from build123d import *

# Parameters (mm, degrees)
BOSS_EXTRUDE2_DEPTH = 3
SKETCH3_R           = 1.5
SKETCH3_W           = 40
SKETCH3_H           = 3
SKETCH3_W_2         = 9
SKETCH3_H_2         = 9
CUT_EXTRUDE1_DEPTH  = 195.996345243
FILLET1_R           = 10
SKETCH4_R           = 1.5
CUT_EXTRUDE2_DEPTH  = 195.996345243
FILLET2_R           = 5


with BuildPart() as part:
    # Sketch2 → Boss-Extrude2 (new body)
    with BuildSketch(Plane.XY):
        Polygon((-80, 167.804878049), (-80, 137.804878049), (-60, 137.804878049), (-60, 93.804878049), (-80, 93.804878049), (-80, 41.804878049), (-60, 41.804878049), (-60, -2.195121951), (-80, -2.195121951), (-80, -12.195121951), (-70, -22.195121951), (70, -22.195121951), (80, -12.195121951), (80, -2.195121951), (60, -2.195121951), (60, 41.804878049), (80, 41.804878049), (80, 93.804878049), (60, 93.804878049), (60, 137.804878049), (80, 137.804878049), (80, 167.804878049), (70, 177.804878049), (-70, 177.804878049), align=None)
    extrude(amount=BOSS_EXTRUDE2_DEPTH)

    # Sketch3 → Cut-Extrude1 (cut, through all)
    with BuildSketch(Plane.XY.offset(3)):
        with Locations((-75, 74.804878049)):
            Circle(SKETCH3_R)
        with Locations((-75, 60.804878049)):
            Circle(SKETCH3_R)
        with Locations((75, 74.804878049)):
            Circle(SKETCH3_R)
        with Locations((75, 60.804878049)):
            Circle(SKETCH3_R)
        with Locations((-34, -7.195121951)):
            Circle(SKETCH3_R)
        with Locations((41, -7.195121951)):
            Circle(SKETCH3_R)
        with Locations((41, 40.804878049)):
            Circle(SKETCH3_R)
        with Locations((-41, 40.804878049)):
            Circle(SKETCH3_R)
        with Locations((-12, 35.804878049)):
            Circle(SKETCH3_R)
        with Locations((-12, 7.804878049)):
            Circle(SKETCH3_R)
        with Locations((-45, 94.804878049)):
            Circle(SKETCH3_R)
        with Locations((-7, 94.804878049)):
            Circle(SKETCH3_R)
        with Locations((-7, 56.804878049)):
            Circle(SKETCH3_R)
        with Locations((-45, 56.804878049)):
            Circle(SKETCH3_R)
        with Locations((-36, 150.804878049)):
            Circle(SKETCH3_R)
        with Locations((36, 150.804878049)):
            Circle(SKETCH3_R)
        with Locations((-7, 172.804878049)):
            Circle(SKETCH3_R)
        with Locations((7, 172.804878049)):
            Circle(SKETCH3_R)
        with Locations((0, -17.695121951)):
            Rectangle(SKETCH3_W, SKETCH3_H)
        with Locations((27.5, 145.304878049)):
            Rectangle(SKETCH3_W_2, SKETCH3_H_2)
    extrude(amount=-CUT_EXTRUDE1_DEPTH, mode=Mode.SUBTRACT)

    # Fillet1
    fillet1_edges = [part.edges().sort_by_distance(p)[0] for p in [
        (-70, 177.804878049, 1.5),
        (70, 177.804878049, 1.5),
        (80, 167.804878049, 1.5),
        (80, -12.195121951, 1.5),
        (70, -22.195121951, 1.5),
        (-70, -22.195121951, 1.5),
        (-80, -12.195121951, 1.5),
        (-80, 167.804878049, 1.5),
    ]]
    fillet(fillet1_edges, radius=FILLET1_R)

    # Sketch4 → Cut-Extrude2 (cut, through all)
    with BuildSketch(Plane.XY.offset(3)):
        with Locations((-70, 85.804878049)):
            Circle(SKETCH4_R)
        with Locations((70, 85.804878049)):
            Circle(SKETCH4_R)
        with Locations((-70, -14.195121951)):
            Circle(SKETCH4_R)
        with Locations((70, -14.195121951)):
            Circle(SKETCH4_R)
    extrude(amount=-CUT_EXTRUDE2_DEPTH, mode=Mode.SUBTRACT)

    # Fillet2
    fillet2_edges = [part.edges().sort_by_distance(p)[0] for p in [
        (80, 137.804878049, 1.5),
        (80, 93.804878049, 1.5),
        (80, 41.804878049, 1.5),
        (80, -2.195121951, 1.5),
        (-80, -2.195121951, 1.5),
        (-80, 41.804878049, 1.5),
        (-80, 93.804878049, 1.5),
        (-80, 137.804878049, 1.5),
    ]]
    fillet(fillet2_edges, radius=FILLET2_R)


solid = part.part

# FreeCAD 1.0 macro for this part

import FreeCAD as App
import Part
import Sketcher
Q = App.Units.Quantity


def edges_at(feature, points):
    """Names of the edges that pass closest to the given points."""
    edges = feature.Shape.Edges
    near = lambda p: min(range(len(edges)), key=lambda i: edges[i].distToShape(Part.Vertex(*p))[0])
    return sorted({f"Edge{near(p) + 1}" for p in points})

doc = App.newDocument("Part")
body = doc.addObject("PartDesign::Body", "Body")

# Sketch on XY plane
sketch1 = doc.addObject("Sketcher::SketchObject", "Sketch")
body.addObject(sketch1)
sketch1.AttachmentSupport = (doc.XY_Plane, [""])
sketch1.MapMode = "FlatFace"
sketch1.addGeometry(Part.LineSegment(App.Vector(-80, 167.804878, 0), App.Vector(-80, 137.804878, 0)), False)
sketch1.addGeometry(Part.LineSegment(App.Vector(-80, 137.804878, 0), App.Vector(-60, 137.804878, 0)), False)
sketch1.addGeometry(Part.LineSegment(App.Vector(-60, 137.804878, 0), App.Vector(-60, 93.804878, 0)), False)
sketch1.addGeometry(Part.LineSegment(App.Vector(-60, 93.804878, 0), App.Vector(-80, 93.804878, 0)), False)
sketch1.addGeometry(Part.LineSegment(App.Vector(-80, 93.804878, 0), App.Vector(-80, 41.804878, 0)), False)
sketch1.addGeometry(Part.LineSegment(App.Vector(-80, 41.804878, 0), App.Vector(-60, 41.804878, 0)), False)
sketch1.addGeometry(Part.LineSegment(App.Vector(-60, 41.804878, 0), App.Vector(-60, -2.195122, 0)), False)
sketch1.addGeometry(Part.LineSegment(App.Vector(-60, -2.195122, 0), App.Vector(-80, -2.195122, 0)), False)
sketch1.addGeometry(Part.LineSegment(App.Vector(-80, -2.195122, 0), App.Vector(-80, -12.195122, 0)), False)
sketch1.addGeometry(Part.LineSegment(App.Vector(-80, -12.195122, 0), App.Vector(-70, -22.195122, 0)), False)
sketch1.addGeometry(Part.LineSegment(App.Vector(-70, -22.195122, 0), App.Vector(70, -22.195122, 0)), False)
sketch1.addGeometry(Part.LineSegment(App.Vector(70, -22.195122, 0), App.Vector(80, -12.195122, 0)), False)
sketch1.addGeometry(Part.LineSegment(App.Vector(80, -12.195122, 0), App.Vector(80, -2.195122, 0)), False)
sketch1.addGeometry(Part.LineSegment(App.Vector(80, -2.195122, 0), App.Vector(60, -2.195122, 0)), False)
sketch1.addGeometry(Part.LineSegment(App.Vector(60, -2.195122, 0), App.Vector(60, 41.804878, 0)), False)
sketch1.addGeometry(Part.LineSegment(App.Vector(60, 41.804878, 0), App.Vector(80, 41.804878, 0)), False)
sketch1.addGeometry(Part.LineSegment(App.Vector(80, 41.804878, 0), App.Vector(80, 93.804878, 0)), False)
sketch1.addGeometry(Part.LineSegment(App.Vector(80, 93.804878, 0), App.Vector(60, 93.804878, 0)), False)
sketch1.addGeometry(Part.LineSegment(App.Vector(60, 93.804878, 0), App.Vector(60, 137.804878, 0)), False)
sketch1.addGeometry(Part.LineSegment(App.Vector(60, 137.804878, 0), App.Vector(80, 137.804878, 0)), False)
sketch1.addGeometry(Part.LineSegment(App.Vector(80, 137.804878, 0), App.Vector(80, 167.804878, 0)), False)
sketch1.addGeometry(Part.LineSegment(App.Vector(80, 167.804878, 0), App.Vector(70, 177.804878, 0)), False)
sketch1.addGeometry(Part.LineSegment(App.Vector(70, 177.804878, 0), App.Vector(-70, 177.804878, 0)), False)
sketch1.addGeometry(Part.LineSegment(App.Vector(-70, 177.804878, 0), App.Vector(-80, 167.804878, 0)), False)
sketch1.addConstraint(Sketcher.Constraint("Coincident", 0, 2, 1, 1))
sketch1.addConstraint(Sketcher.Constraint("Coincident", 1, 2, 2, 1))
sketch1.addConstraint(Sketcher.Constraint("Coincident", 2, 2, 3, 1))
sketch1.addConstraint(Sketcher.Constraint("Coincident", 3, 2, 4, 1))
sketch1.addConstraint(Sketcher.Constraint("Coincident", 4, 2, 5, 1))
sketch1.addConstraint(Sketcher.Constraint("Coincident", 5, 2, 6, 1))
sketch1.addConstraint(Sketcher.Constraint("Coincident", 6, 2, 7, 1))
sketch1.addConstraint(Sketcher.Constraint("Coincident", 7, 2, 8, 1))
sketch1.addConstraint(Sketcher.Constraint("Coincident", 8, 2, 9, 1))
sketch1.addConstraint(Sketcher.Constraint("Coincident", 9, 2, 10, 1))
sketch1.addConstraint(Sketcher.Constraint("Coincident", 10, 2, 11, 1))
sketch1.addConstraint(Sketcher.Constraint("Coincident", 11, 2, 12, 1))
sketch1.addConstraint(Sketcher.Constraint("Coincident", 12, 2, 13, 1))
sketch1.addConstraint(Sketcher.Constraint("Coincident", 13, 2, 14, 1))
sketch1.addConstraint(Sketcher.Constraint("Coincident", 14, 2, 15, 1))
sketch1.addConstraint(Sketcher.Constraint("Coincident", 15, 2, 16, 1))
sketch1.addConstraint(Sketcher.Constraint("Coincident", 16, 2, 17, 1))
sketch1.addConstraint(Sketcher.Constraint("Coincident", 17, 2, 18, 1))
sketch1.addConstraint(Sketcher.Constraint("Coincident", 18, 2, 19, 1))
sketch1.addConstraint(Sketcher.Constraint("Coincident", 19, 2, 20, 1))
sketch1.addConstraint(Sketcher.Constraint("Coincident", 20, 2, 21, 1))
sketch1.addConstraint(Sketcher.Constraint("Coincident", 21, 2, 22, 1))
sketch1.addConstraint(Sketcher.Constraint("Coincident", 22, 2, 23, 1))
sketch1.addConstraint(Sketcher.Constraint("Coincident", 23, 2, 0, 1))
sketch1.addConstraint(Sketcher.Constraint("Vertical", 0))
sketch1.addConstraint(Sketcher.Constraint("Horizontal", 1))
sketch1.addConstraint(Sketcher.Constraint("Vertical", 2))
sketch1.addConstraint(Sketcher.Constraint("Horizontal", 3))
sketch1.addConstraint(Sketcher.Constraint("Vertical", 4))
sketch1.addConstraint(Sketcher.Constraint("Horizontal", 5))
sketch1.addConstraint(Sketcher.Constraint("Vertical", 6))
sketch1.addConstraint(Sketcher.Constraint("Horizontal", 7))
sketch1.addConstraint(Sketcher.Constraint("Vertical", 8))
sketch1.addConstraint(Sketcher.Constraint("Horizontal", 10))
sketch1.addConstraint(Sketcher.Constraint("Vertical", 12))
sketch1.addConstraint(Sketcher.Constraint("Horizontal", 13))
sketch1.addConstraint(Sketcher.Constraint("Vertical", 14))
sketch1.addConstraint(Sketcher.Constraint("Horizontal", 15))
sketch1.addConstraint(Sketcher.Constraint("Vertical", 16))
sketch1.addConstraint(Sketcher.Constraint("Horizontal", 17))
sketch1.addConstraint(Sketcher.Constraint("Vertical", 18))
sketch1.addConstraint(Sketcher.Constraint("Horizontal", 19))
sketch1.addConstraint(Sketcher.Constraint("Vertical", 20))
sketch1.addConstraint(Sketcher.Constraint("Horizontal", 22))
sketch1.addConstraint(Sketcher.Constraint("Symmetric", 8, 2, 11, 2, -2))
sketch1.addConstraint(Sketcher.Constraint("Symmetric", 6, 2, 13, 2, -2))
sketch1.addConstraint(Sketcher.Constraint("Symmetric", 4, 2, 15, 2, -2))
sketch1.addConstraint(Sketcher.Constraint("Symmetric", 2, 2, 17, 2, -2))
sketch1.addConstraint(Sketcher.Constraint("Symmetric", 0, 2, 19, 2, -2))
sketch1.addConstraint(Sketcher.Constraint("Perpendicular", 9, 11))
sketch1.addConstraint(Sketcher.Constraint("Perpendicular", 11, 21))
sketch1.addConstraint(Sketcher.Constraint("Perpendicular", 21, 23))
sketch1.addConstraint(Sketcher.Constraint("Horizontal", 20, 2, 23, 2))
sketch1.addConstraint(Sketcher.Constraint("Vertical", 0, 2, 3, 2))
sketch1.addConstraint(Sketcher.Constraint("Vertical", 2, 2, 5, 2))
sketch1.addConstraint(Sketcher.Constraint("Vertical", 4, 2, 7, 2))
sketch1.addConstraint(Sketcher.Constraint("Vertical", 10, 2, 21, 2))
sketch1.addConstraint(Sketcher.Constraint("Vertical", 9, 2, 22, 2))
sketch1.addConstraint(Sketcher.Constraint("Equal", 2, 6))
sketch1.addConstraint(Sketcher.Constraint("DistanceX", 1, 1, 1, 2, Q("20 mm")))
sketch1.addConstraint(Sketcher.Constraint("DistanceX", 10, 1, 10, 2, Q("140 mm")))
sketch1.addConstraint(Sketcher.Constraint("DistanceY", 0, 2, 0, 1, Q("30 mm")))
sketch1.addConstraint(Sketcher.Constraint("DistanceY", 2, 2, 2, 1, Q("44 mm")))
sketch1.addConstraint(Sketcher.Constraint("DistanceY", 4, 2, 4, 1, Q("52 mm")))
sketch1.addConstraint(Sketcher.Constraint("DistanceY", 8, 2, 8, 1, Q("10 mm")))
sketch1.addConstraint(Sketcher.Constraint("DistanceX", 0, 2, -1, 1, Q("80 mm")))
sketch1.addConstraint(Sketcher.Constraint("DistanceY", -1, 1, 0, 2, Q("137.804878 mm")))
pad1 = doc.addObject("PartDesign::Pad", "Pad")
body.addObject(pad1)
pad1.Profile = sketch1
pad1.Length = 3

# Sketch on XY plane
sketch2 = doc.addObject("Sketcher::SketchObject", "Sketch001")
body.addObject(sketch2)
sketch2.AttachmentSupport = (doc.XY_Plane, [""])
sketch2.MapMode = "FlatFace"
sketch2.AttachmentOffset = App.Placement(App.Vector(0, 0, 3), App.Rotation())
sketch2.addGeometry(Part.Circle(App.Vector(-75, 74.804878, 0), App.Vector(0, 0, 1), 1.5), False)
sketch2.addGeometry(Part.Circle(App.Vector(-75, 60.804878, 0), App.Vector(0, 0, 1), 1.5), False)
sketch2.addGeometry(Part.Circle(App.Vector(75, 74.804878, 0), App.Vector(0, 0, 1), 1.5), False)
sketch2.addGeometry(Part.Circle(App.Vector(75, 60.804878, 0), App.Vector(0, 0, 1), 1.5), False)
sketch2.addGeometry(Part.Circle(App.Vector(-34, -7.195122, 0), App.Vector(0, 0, 1), 1.5), False)
sketch2.addGeometry(Part.Circle(App.Vector(41, -7.195122, 0), App.Vector(0, 0, 1), 1.5), False)
sketch2.addGeometry(Part.Circle(App.Vector(41, 40.804878, 0), App.Vector(0, 0, 1), 1.5), False)
sketch2.addGeometry(Part.Circle(App.Vector(-41, 40.804878, 0), App.Vector(0, 0, 1), 1.5), False)
sketch2.addGeometry(Part.Circle(App.Vector(-12, 35.804878, 0), App.Vector(0, 0, 1), 1.5), False)
sketch2.addGeometry(Part.Circle(App.Vector(-12, 7.804878, 0), App.Vector(0, 0, 1), 1.5), False)
sketch2.addGeometry(Part.Circle(App.Vector(-45, 94.804878, 0), App.Vector(0, 0, 1), 1.5), False)
sketch2.addGeometry(Part.Circle(App.Vector(-7, 94.804878, 0), App.Vector(0, 0, 1), 1.5), False)
sketch2.addGeometry(Part.Circle(App.Vector(-7, 56.804878, 0), App.Vector(0, 0, 1), 1.5), False)
sketch2.addGeometry(Part.Circle(App.Vector(-45, 56.804878, 0), App.Vector(0, 0, 1), 1.5), False)
sketch2.addGeometry(Part.Circle(App.Vector(-36, 150.804878, 0), App.Vector(0, 0, 1), 1.5), False)
sketch2.addGeometry(Part.Circle(App.Vector(36, 150.804878, 0), App.Vector(0, 0, 1), 1.5), False)
sketch2.addGeometry(Part.Circle(App.Vector(-7, 172.804878, 0), App.Vector(0, 0, 1), 1.5), False)
sketch2.addGeometry(Part.Circle(App.Vector(7, 172.804878, 0), App.Vector(0, 0, 1), 1.5), False)
sketch2.addGeometry(Part.LineSegment(App.Vector(-20, -16.195122, 0), App.Vector(-20, -19.195122, 0)), False)
sketch2.addGeometry(Part.LineSegment(App.Vector(-20, -19.195122, 0), App.Vector(20, -19.195122, 0)), False)
sketch2.addGeometry(Part.LineSegment(App.Vector(20, -19.195122, 0), App.Vector(20, -16.195122, 0)), False)
sketch2.addGeometry(Part.LineSegment(App.Vector(20, -16.195122, 0), App.Vector(-20, -16.195122, 0)), False)
sketch2.addGeometry(Part.LineSegment(App.Vector(23, 149.804878, 0), App.Vector(23, 140.804878, 0)), False)
sketch2.addGeometry(Part.LineSegment(App.Vector(23, 140.804878, 0), App.Vector(32, 140.804878, 0)), False)
sketch2.addGeometry(Part.LineSegment(App.Vector(32, 140.804878, 0), App.Vector(32, 149.804878, 0)), False)
sketch2.addGeometry(Part.LineSegment(App.Vector(32, 149.804878, 0), App.Vector(23, 149.804878, 0)), False)
sketch2.addConstraint(Sketcher.Constraint("Coincident", 18, 2, 19, 1))
sketch2.addConstraint(Sketcher.Constraint("Coincident", 19, 2, 20, 1))
sketch2.addConstraint(Sketcher.Constraint("Coincident", 20, 2, 21, 1))
sketch2.addConstraint(Sketcher.Constraint("Coincident", 21, 2, 18, 1))
sketch2.addConstraint(Sketcher.Constraint("Coincident", 22, 2, 23, 1))
sketch2.addConstraint(Sketcher.Constraint("Coincident", 23, 2, 24, 1))
sketch2.addConstraint(Sketcher.Constraint("Coincident", 24, 2, 25, 1))
sketch2.addConstraint(Sketcher.Constraint("Coincident", 25, 2, 22, 1))
sketch2.addConstraint(Sketcher.Constraint("Vertical", 18))
sketch2.addConstraint(Sketcher.Constraint("Horizontal", 19))
sketch2.addConstraint(Sketcher.Constraint("Vertical", 20))
sketch2.addConstraint(Sketcher.Constraint("Horizontal", 21))
sketch2.addConstraint(Sketcher.Constraint("Vertical", 22))
sketch2.addConstraint(Sketcher.Constraint("Horizontal", 23))
sketch2.addConstraint(Sketcher.Constraint("Vertical", 24))
sketch2.addConstraint(Sketcher.Constraint("Horizontal", 25))
sketch2.addConstraint(Sketcher.Constraint("Equal", 0, 1))
sketch2.addConstraint(Sketcher.Constraint("Equal", 1, 2))
sketch2.addConstraint(Sketcher.Constraint("Equal", 2, 3))
sketch2.addConstraint(Sketcher.Constraint("Equal", 3, 4))
sketch2.addConstraint(Sketcher.Constraint("Equal", 4, 5))
sketch2.addConstraint(Sketcher.Constraint("Equal", 5, 6))
sketch2.addConstraint(Sketcher.Constraint("Equal", 6, 7))
sketch2.addConstraint(Sketcher.Constraint("Equal", 7, 8))
sketch2.addConstraint(Sketcher.Constraint("Equal", 8, 9))
sketch2.addConstraint(Sketcher.Constraint("Equal", 9, 10))
sketch2.addConstraint(Sketcher.Constraint("Equal", 10, 11))
sketch2.addConstraint(Sketcher.Constraint("Equal", 11, 12))
sketch2.addConstraint(Sketcher.Constraint("Equal", 12, 13))
sketch2.addConstraint(Sketcher.Constraint("Equal", 13, 14))
sketch2.addConstraint(Sketcher.Constraint("Equal", 14, 15))
sketch2.addConstraint(Sketcher.Constraint("Equal", 15, 16))
sketch2.addConstraint(Sketcher.Constraint("Equal", 16, 17))
sketch2.addConstraint(Sketcher.Constraint("Symmetric", 0, 3, 2, 3, -2))
sketch2.addConstraint(Sketcher.Constraint("Symmetric", 1, 3, 3, 3, -2))
sketch2.addConstraint(Sketcher.Constraint("Symmetric", 6, 3, 7, 3, -2))
sketch2.addConstraint(Sketcher.Constraint("Symmetric", 14, 3, 15, 3, -2))
sketch2.addConstraint(Sketcher.Constraint("Symmetric", 16, 3, 17, 3, -2))
sketch2.addConstraint(Sketcher.Constraint("Horizontal", 4, 3, 5, 3))
sketch2.addConstraint(Sketcher.Constraint("Horizontal", 10, 3, 11, 3))
sketch2.addConstraint(Sketcher.Constraint("Horizontal", 12, 3, 13, 3))
sketch2.addConstraint(Sketcher.Constraint("Vertical", 0, 3, 1, 3))
sketch2.addConstraint(Sketcher.Constraint("Vertical", 5, 3, 6, 3))
sketch2.addConstraint(Sketcher.Constraint("Vertical", 8, 3, 9, 3))
sketch2.addConstraint(Sketcher.Constraint("Vertical", 11, 3, 12, 3))
sketch2.addConstraint(Sketcher.Constraint("Vertical", 10, 3, 13, 3))
sketch2.addConstraint(Sketcher.Constraint("Vertical", 12, 3, 16, 3))
sketch2.addConstraint(Sketcher.Constraint("Equal", 25, 22))
sketch2.addConstraint(Sketcher.Constraint("Diameter", 0, Q("3 mm")))
sketch2.addConstraint(Sketcher.Constraint("DistanceX", 19, 1, 19, 2, Q("40 mm")))
sketch2.addConstraint(Sketcher.Constraint("DistanceX", 23, 1, 23, 2, Q("9 mm")))
sketch2.addConstraint(Sketcher.Constraint("DistanceY", 18, 2, 18, 1, Q("3 mm")))
sketch2.addConstraint(Sketcher.Constraint("DistanceX", 0, 3, -1, 1, Q("75 mm")))
sketch2.addConstraint(Sketcher.Constraint("DistanceX", 4, 3, -1, 1, Q("34 mm")))
sketch2.addConstraint(Sketcher.Constraint("DistanceX", -1, 1, 5, 3, Q("41 mm")))
sketch2.addConstraint(Sketcher.Constraint("DistanceX", 8, 3, -1, 1, Q("12 mm")))
sketch2.addConstraint(Sketcher.Constraint("DistanceX", 10, 3, -1, 1, Q("45 mm")))
sketch2.addConstraint(Sketcher.Constraint("DistanceX", 11, 3, -1, 1, Q("7 mm")))
sketch2.addConstraint(Sketcher.Constraint("DistanceX", 14, 3, -1, 1, Q("36 mm")))
sketch2.addConstraint(Sketcher.Constraint("DistanceX", 18, 2, -1, 1, Q("20 mm")))
sketch2.addConstraint(Sketcher.Constraint("DistanceX", -1, 1, 22, 2, Q("23 mm")))
sketch2.addConstraint(Sketcher.Constraint("DistanceY", 1, 3, 0, 3, Q("14 mm")))
sketch2.addConstraint(Sketcher.Constraint("DistanceY", 4, 3, 1, 3, Q("68 mm")))
sketch2.addConstraint(Sketcher.Constraint("DistanceY", 6, 3, 3, 3, Q("20 mm")))
sketch2.addConstraint(Sketcher.Constraint("DistanceY", 8, 3, 7, 3, Q("5 mm")))
sketch2.addConstraint(Sketcher.Constraint("DistanceY", 4, 3, 9, 3, Q("15 mm")))
sketch2.addConstraint(Sketcher.Constraint("DistanceY", 0, 3, 10, 3, Q("20 mm")))
sketch2.addConstraint(Sketcher.Constraint("DistanceY", 8, 3, 12, 3, Q("21 mm")))
sketch2.addConstraint(Sketcher.Constraint("DistanceY", 10, 3, 14, 3, Q("56 mm")))
sketch2.addConstraint(Sketcher.Constraint("DistanceY", 14, 3, 16, 3, Q("22 mm")))
sketch2.addConstraint(Sketcher.Constraint("DistanceY", 18, 2, 4, 3, Q("12 mm")))
sketch2.addConstraint(Sketcher.Constraint("DistanceY", 22, 2, 15, 3, Q("10 mm")))
sketch2.addConstraint(Sketcher.Constraint("DistanceY", -1, 1, 0, 3, Q("74.804878 mm")))
pocket1 = doc.addObject("PartDesign::Pocket", "Pocket")
body.addObject(pocket1)
pocket1.Profile = sketch2
pocket1.Type = "ThroughAll"
doc.recompute()

fillet = doc.addObject("PartDesign::Fillet", "Fillet")
body.addObject(fillet)
fillet.Base = (pocket1, edges_at(pocket1, [
    (-70, 177.805, 1.5),
    (70, 177.805, 1.5),
    (80, 167.805, 1.5),
    (80, -12.195, 1.5),
    (70, -22.195, 1.5),
    (-70, -22.195, 1.5),
    (-80, -12.195, 1.5),
    (-80, 167.805, 1.5),
]))
fillet.Radius = 10

# Sketch on XY plane
sketch3 = doc.addObject("Sketcher::SketchObject", "Sketch002")
body.addObject(sketch3)
sketch3.AttachmentSupport = (doc.XY_Plane, [""])
sketch3.MapMode = "FlatFace"
sketch3.AttachmentOffset = App.Placement(App.Vector(0, 0, 3), App.Rotation())
sketch3.addGeometry(Part.Circle(App.Vector(-70, 85.804878, 0), App.Vector(0, 0, 1), 1.5), False)
sketch3.addGeometry(Part.Circle(App.Vector(70, 85.804878, 0), App.Vector(0, 0, 1), 1.5), False)
sketch3.addGeometry(Part.Circle(App.Vector(-70, -14.195122, 0), App.Vector(0, 0, 1), 1.5), False)
sketch3.addGeometry(Part.Circle(App.Vector(70, -14.195122, 0), App.Vector(0, 0, 1), 1.5), False)
sketch3.addConstraint(Sketcher.Constraint("Equal", 0, 1))
sketch3.addConstraint(Sketcher.Constraint("Equal", 1, 2))
sketch3.addConstraint(Sketcher.Constraint("Equal", 2, 3))
sketch3.addConstraint(Sketcher.Constraint("Symmetric", 0, 3, 1, 3, -2))
sketch3.addConstraint(Sketcher.Constraint("Symmetric", 2, 3, 3, 3, -2))
sketch3.addConstraint(Sketcher.Constraint("Vertical", 0, 3, 2, 3))
sketch3.addConstraint(Sketcher.Constraint("Diameter", 0, Q("3 mm")))
sketch3.addConstraint(Sketcher.Constraint("DistanceX", 0, 3, -1, 1, Q("70 mm")))
sketch3.addConstraint(Sketcher.Constraint("DistanceY", 2, 3, 0, 3, Q("100 mm")))
sketch3.addConstraint(Sketcher.Constraint("DistanceY", -1, 1, 0, 3, Q("85.804878 mm")))
pocket2 = doc.addObject("PartDesign::Pocket", "Pocket001")
body.addObject(pocket2)
pocket2.Profile = sketch3
pocket2.Type = "ThroughAll"
doc.recompute()

fillet2 = doc.addObject("PartDesign::Fillet", "Fillet001")
body.addObject(fillet2)
fillet2.Base = (pocket2, edges_at(pocket2, [
    (80, 137.805, 1.5),
    (80, 93.805, 1.5),
    (80, 41.805, 1.5),
    (80, -2.195, 1.5),
    (-80, -2.195, 1.5),
    (-80, 41.805, 1.5),
    (-80, 93.805, 1.5),
    (-80, 137.805, 1.5),
]))
fillet2.Radius = 5

doc.recompute()
